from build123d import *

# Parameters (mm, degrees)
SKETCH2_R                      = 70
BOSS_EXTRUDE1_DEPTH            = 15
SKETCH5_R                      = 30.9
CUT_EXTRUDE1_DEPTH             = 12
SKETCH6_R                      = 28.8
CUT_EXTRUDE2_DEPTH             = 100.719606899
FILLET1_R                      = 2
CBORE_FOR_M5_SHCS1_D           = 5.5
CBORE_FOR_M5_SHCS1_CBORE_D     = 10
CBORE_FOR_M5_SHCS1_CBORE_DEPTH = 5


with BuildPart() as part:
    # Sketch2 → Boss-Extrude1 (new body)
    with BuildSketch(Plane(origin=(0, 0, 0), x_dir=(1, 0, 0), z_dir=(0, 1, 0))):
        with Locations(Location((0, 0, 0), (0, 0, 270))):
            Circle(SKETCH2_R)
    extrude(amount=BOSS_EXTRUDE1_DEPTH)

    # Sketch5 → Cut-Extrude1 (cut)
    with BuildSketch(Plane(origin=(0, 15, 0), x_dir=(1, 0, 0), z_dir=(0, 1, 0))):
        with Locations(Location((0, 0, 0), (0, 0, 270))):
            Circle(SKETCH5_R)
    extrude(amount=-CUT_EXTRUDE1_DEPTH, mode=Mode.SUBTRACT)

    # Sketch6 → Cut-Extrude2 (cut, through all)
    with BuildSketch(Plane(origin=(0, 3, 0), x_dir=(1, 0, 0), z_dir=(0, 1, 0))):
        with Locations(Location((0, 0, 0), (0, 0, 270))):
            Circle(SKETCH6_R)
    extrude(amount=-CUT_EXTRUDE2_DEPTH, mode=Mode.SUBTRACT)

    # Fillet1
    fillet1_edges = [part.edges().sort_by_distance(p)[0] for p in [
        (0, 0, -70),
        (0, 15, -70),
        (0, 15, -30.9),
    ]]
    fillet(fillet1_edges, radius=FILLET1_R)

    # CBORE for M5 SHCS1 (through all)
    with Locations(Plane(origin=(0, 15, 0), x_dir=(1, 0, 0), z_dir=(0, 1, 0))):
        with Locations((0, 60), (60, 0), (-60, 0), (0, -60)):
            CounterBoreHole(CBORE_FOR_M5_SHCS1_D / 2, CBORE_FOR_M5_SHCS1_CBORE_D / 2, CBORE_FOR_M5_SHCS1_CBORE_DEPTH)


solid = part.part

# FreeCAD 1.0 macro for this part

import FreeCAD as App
import Part
import Sketcher

V = App.Vector
Q = App.Units.Quantity


def edges_at(feature, points):
    """Names of the edges that pass closest to the given points."""
    edges = feature.Shape.Edges
    near = lambda p: min(range(len(edges)), key=lambda i: edges[i].distToShape(Part.Vertex(*p))[0])
    return sorted({f"Edge{near(p) + 1}" for p in points})

doc = App.newDocument("Part")
body = doc.addObject("PartDesign::Body", "Body")

sketch1 = body.newObject("Sketcher::SketchObject", "Sketch")
sketch1.AttachmentSupport = (doc.getObject("XZ_Plane"), [""])
sketch1.MapMode = "FlatFace"
sketch1.addGeometry(Part.Circle(V(0, 0, 0), V(0, 0, 1), 70), False)
sketch1.addConstraint(Sketcher.Constraint("Coincident", 0, 3, -1, 1))
sketch1.addConstraint(Sketcher.Constraint("Diameter", 0, Q("140 mm")))
pad1 = body.newObject("PartDesign::Pad", "Pad")
pad1.Profile = sketch1
pad1.Length = 15
pad1.Reversed = True

sketch2 = body.newObject("Sketcher::SketchObject", "Sketch001")
sketch2.AttachmentSupport = (doc.getObject("XZ_Plane"), [""])
sketch2.MapMode = "FlatFace"
sketch2.AttachmentOffset = App.Placement(V(0, 0, -15), App.Rotation())
sketch2.addGeometry(Part.Circle(V(0, 0, 0), V(0, 0, 1), 30.9), False)
sketch2.addConstraint(Sketcher.Constraint("Coincident", 0, 3, -1, 1))
sketch2.addConstraint(Sketcher.Constraint("Diameter", 0, Q("61.8 mm")))
pocket1 = body.newObject("PartDesign::Pocket", "Pocket")
pocket1.Profile = sketch2
pocket1.Length = 12
pocket1.Reversed = True

sketch3 = body.newObject("Sketcher::SketchObject", "Sketch002")
sketch3.AttachmentSupport = (doc.getObject("XZ_Plane"), [""])
sketch3.MapMode = "FlatFace"
sketch3.AttachmentOffset = App.Placement(V(0, 0, -3), App.Rotation())
sketch3.addGeometry(Part.Circle(V(0, 0, 0), V(0, 0, 1), 28.8), False)
sketch3.addConstraint(Sketcher.Constraint("Coincident", 0, 3, -1, 1))
sketch3.addConstraint(Sketcher.Constraint("Diameter", 0, Q("57.6 mm")))
pocket2 = body.newObject("PartDesign::Pocket", "Pocket001")
pocket2.Profile = sketch3
pocket2.Type = "ThroughAll"
pocket2.Reversed = True
doc.recompute()

fillet = body.newObject("PartDesign::Fillet", "Fillet")
fillet.Base = (pocket2, edges_at(pocket2, [(0, 0, -70), (0, 15, -70), (0, 15, -30.9)]))
fillet.Radius = 2

sketch4 = body.newObject("Sketcher::SketchObject", "Sketch003")
sketch4.AttachmentSupport = (doc.getObject("XZ_Plane"), [""])
sketch4.MapMode = "FlatFace"
sketch4.AttachmentOffset = App.Placement(V(0, 0, -15), App.Rotation())
sketch4.addGeometry(Part.Circle(V(0, -60, 0), V(0, 0, 1), 2.75), False)
sketch4.addGeometry(Part.Circle(V(60, 0, 0), V(0, 0, 1), 2.75), False)
sketch4.addGeometry(Part.Circle(V(-60, 0, 0), V(0, 0, 1), 2.75), False)
sketch4.addGeometry(Part.Circle(V(0, 60, 0), V(0, 0, 1), 2.75), False)
sketch4.addConstraint(Sketcher.Constraint("Equal", 0, 1))
sketch4.addConstraint(Sketcher.Constraint("Equal", 1, 2))
sketch4.addConstraint(Sketcher.Constraint("Equal", 2, 3))
sketch4.addConstraint(Sketcher.Constraint("Symmetric", 1, 3, 2, 3, -1, 1))
sketch4.addConstraint(Sketcher.Constraint("Symmetric", 0, 3, 3, 3, -1, 1))
sketch4.addConstraint(Sketcher.Constraint("PointOnObject", 0, 3, -2))
sketch4.addConstraint(Sketcher.Constraint("PointOnObject", 1, 3, -1))
sketch4.addConstraint(Sketcher.Constraint("Diameter", 0, Q("5.5 mm")))
sketch4.addConstraint(Sketcher.Constraint("DistanceY", 0, 3, -1, 1, Q("60 mm")))
sketch4.addConstraint(Sketcher.Constraint("DistanceX", -1, 1, 1, 3, Q("60 mm")))
doc.recompute()
hole = body.newObject("PartDesign::Hole", "Hole")
hole.Profile = sketch4
hole.ThreadType = "None"
hole.Diameter = 5.5
hole.DepthType = "ThroughAll"
hole.HoleCutType = "Counterbore"
hole.HoleCutDiameter = 10
hole.HoleCutDepth = 5
hole.Reversed = True

doc.recompute()
